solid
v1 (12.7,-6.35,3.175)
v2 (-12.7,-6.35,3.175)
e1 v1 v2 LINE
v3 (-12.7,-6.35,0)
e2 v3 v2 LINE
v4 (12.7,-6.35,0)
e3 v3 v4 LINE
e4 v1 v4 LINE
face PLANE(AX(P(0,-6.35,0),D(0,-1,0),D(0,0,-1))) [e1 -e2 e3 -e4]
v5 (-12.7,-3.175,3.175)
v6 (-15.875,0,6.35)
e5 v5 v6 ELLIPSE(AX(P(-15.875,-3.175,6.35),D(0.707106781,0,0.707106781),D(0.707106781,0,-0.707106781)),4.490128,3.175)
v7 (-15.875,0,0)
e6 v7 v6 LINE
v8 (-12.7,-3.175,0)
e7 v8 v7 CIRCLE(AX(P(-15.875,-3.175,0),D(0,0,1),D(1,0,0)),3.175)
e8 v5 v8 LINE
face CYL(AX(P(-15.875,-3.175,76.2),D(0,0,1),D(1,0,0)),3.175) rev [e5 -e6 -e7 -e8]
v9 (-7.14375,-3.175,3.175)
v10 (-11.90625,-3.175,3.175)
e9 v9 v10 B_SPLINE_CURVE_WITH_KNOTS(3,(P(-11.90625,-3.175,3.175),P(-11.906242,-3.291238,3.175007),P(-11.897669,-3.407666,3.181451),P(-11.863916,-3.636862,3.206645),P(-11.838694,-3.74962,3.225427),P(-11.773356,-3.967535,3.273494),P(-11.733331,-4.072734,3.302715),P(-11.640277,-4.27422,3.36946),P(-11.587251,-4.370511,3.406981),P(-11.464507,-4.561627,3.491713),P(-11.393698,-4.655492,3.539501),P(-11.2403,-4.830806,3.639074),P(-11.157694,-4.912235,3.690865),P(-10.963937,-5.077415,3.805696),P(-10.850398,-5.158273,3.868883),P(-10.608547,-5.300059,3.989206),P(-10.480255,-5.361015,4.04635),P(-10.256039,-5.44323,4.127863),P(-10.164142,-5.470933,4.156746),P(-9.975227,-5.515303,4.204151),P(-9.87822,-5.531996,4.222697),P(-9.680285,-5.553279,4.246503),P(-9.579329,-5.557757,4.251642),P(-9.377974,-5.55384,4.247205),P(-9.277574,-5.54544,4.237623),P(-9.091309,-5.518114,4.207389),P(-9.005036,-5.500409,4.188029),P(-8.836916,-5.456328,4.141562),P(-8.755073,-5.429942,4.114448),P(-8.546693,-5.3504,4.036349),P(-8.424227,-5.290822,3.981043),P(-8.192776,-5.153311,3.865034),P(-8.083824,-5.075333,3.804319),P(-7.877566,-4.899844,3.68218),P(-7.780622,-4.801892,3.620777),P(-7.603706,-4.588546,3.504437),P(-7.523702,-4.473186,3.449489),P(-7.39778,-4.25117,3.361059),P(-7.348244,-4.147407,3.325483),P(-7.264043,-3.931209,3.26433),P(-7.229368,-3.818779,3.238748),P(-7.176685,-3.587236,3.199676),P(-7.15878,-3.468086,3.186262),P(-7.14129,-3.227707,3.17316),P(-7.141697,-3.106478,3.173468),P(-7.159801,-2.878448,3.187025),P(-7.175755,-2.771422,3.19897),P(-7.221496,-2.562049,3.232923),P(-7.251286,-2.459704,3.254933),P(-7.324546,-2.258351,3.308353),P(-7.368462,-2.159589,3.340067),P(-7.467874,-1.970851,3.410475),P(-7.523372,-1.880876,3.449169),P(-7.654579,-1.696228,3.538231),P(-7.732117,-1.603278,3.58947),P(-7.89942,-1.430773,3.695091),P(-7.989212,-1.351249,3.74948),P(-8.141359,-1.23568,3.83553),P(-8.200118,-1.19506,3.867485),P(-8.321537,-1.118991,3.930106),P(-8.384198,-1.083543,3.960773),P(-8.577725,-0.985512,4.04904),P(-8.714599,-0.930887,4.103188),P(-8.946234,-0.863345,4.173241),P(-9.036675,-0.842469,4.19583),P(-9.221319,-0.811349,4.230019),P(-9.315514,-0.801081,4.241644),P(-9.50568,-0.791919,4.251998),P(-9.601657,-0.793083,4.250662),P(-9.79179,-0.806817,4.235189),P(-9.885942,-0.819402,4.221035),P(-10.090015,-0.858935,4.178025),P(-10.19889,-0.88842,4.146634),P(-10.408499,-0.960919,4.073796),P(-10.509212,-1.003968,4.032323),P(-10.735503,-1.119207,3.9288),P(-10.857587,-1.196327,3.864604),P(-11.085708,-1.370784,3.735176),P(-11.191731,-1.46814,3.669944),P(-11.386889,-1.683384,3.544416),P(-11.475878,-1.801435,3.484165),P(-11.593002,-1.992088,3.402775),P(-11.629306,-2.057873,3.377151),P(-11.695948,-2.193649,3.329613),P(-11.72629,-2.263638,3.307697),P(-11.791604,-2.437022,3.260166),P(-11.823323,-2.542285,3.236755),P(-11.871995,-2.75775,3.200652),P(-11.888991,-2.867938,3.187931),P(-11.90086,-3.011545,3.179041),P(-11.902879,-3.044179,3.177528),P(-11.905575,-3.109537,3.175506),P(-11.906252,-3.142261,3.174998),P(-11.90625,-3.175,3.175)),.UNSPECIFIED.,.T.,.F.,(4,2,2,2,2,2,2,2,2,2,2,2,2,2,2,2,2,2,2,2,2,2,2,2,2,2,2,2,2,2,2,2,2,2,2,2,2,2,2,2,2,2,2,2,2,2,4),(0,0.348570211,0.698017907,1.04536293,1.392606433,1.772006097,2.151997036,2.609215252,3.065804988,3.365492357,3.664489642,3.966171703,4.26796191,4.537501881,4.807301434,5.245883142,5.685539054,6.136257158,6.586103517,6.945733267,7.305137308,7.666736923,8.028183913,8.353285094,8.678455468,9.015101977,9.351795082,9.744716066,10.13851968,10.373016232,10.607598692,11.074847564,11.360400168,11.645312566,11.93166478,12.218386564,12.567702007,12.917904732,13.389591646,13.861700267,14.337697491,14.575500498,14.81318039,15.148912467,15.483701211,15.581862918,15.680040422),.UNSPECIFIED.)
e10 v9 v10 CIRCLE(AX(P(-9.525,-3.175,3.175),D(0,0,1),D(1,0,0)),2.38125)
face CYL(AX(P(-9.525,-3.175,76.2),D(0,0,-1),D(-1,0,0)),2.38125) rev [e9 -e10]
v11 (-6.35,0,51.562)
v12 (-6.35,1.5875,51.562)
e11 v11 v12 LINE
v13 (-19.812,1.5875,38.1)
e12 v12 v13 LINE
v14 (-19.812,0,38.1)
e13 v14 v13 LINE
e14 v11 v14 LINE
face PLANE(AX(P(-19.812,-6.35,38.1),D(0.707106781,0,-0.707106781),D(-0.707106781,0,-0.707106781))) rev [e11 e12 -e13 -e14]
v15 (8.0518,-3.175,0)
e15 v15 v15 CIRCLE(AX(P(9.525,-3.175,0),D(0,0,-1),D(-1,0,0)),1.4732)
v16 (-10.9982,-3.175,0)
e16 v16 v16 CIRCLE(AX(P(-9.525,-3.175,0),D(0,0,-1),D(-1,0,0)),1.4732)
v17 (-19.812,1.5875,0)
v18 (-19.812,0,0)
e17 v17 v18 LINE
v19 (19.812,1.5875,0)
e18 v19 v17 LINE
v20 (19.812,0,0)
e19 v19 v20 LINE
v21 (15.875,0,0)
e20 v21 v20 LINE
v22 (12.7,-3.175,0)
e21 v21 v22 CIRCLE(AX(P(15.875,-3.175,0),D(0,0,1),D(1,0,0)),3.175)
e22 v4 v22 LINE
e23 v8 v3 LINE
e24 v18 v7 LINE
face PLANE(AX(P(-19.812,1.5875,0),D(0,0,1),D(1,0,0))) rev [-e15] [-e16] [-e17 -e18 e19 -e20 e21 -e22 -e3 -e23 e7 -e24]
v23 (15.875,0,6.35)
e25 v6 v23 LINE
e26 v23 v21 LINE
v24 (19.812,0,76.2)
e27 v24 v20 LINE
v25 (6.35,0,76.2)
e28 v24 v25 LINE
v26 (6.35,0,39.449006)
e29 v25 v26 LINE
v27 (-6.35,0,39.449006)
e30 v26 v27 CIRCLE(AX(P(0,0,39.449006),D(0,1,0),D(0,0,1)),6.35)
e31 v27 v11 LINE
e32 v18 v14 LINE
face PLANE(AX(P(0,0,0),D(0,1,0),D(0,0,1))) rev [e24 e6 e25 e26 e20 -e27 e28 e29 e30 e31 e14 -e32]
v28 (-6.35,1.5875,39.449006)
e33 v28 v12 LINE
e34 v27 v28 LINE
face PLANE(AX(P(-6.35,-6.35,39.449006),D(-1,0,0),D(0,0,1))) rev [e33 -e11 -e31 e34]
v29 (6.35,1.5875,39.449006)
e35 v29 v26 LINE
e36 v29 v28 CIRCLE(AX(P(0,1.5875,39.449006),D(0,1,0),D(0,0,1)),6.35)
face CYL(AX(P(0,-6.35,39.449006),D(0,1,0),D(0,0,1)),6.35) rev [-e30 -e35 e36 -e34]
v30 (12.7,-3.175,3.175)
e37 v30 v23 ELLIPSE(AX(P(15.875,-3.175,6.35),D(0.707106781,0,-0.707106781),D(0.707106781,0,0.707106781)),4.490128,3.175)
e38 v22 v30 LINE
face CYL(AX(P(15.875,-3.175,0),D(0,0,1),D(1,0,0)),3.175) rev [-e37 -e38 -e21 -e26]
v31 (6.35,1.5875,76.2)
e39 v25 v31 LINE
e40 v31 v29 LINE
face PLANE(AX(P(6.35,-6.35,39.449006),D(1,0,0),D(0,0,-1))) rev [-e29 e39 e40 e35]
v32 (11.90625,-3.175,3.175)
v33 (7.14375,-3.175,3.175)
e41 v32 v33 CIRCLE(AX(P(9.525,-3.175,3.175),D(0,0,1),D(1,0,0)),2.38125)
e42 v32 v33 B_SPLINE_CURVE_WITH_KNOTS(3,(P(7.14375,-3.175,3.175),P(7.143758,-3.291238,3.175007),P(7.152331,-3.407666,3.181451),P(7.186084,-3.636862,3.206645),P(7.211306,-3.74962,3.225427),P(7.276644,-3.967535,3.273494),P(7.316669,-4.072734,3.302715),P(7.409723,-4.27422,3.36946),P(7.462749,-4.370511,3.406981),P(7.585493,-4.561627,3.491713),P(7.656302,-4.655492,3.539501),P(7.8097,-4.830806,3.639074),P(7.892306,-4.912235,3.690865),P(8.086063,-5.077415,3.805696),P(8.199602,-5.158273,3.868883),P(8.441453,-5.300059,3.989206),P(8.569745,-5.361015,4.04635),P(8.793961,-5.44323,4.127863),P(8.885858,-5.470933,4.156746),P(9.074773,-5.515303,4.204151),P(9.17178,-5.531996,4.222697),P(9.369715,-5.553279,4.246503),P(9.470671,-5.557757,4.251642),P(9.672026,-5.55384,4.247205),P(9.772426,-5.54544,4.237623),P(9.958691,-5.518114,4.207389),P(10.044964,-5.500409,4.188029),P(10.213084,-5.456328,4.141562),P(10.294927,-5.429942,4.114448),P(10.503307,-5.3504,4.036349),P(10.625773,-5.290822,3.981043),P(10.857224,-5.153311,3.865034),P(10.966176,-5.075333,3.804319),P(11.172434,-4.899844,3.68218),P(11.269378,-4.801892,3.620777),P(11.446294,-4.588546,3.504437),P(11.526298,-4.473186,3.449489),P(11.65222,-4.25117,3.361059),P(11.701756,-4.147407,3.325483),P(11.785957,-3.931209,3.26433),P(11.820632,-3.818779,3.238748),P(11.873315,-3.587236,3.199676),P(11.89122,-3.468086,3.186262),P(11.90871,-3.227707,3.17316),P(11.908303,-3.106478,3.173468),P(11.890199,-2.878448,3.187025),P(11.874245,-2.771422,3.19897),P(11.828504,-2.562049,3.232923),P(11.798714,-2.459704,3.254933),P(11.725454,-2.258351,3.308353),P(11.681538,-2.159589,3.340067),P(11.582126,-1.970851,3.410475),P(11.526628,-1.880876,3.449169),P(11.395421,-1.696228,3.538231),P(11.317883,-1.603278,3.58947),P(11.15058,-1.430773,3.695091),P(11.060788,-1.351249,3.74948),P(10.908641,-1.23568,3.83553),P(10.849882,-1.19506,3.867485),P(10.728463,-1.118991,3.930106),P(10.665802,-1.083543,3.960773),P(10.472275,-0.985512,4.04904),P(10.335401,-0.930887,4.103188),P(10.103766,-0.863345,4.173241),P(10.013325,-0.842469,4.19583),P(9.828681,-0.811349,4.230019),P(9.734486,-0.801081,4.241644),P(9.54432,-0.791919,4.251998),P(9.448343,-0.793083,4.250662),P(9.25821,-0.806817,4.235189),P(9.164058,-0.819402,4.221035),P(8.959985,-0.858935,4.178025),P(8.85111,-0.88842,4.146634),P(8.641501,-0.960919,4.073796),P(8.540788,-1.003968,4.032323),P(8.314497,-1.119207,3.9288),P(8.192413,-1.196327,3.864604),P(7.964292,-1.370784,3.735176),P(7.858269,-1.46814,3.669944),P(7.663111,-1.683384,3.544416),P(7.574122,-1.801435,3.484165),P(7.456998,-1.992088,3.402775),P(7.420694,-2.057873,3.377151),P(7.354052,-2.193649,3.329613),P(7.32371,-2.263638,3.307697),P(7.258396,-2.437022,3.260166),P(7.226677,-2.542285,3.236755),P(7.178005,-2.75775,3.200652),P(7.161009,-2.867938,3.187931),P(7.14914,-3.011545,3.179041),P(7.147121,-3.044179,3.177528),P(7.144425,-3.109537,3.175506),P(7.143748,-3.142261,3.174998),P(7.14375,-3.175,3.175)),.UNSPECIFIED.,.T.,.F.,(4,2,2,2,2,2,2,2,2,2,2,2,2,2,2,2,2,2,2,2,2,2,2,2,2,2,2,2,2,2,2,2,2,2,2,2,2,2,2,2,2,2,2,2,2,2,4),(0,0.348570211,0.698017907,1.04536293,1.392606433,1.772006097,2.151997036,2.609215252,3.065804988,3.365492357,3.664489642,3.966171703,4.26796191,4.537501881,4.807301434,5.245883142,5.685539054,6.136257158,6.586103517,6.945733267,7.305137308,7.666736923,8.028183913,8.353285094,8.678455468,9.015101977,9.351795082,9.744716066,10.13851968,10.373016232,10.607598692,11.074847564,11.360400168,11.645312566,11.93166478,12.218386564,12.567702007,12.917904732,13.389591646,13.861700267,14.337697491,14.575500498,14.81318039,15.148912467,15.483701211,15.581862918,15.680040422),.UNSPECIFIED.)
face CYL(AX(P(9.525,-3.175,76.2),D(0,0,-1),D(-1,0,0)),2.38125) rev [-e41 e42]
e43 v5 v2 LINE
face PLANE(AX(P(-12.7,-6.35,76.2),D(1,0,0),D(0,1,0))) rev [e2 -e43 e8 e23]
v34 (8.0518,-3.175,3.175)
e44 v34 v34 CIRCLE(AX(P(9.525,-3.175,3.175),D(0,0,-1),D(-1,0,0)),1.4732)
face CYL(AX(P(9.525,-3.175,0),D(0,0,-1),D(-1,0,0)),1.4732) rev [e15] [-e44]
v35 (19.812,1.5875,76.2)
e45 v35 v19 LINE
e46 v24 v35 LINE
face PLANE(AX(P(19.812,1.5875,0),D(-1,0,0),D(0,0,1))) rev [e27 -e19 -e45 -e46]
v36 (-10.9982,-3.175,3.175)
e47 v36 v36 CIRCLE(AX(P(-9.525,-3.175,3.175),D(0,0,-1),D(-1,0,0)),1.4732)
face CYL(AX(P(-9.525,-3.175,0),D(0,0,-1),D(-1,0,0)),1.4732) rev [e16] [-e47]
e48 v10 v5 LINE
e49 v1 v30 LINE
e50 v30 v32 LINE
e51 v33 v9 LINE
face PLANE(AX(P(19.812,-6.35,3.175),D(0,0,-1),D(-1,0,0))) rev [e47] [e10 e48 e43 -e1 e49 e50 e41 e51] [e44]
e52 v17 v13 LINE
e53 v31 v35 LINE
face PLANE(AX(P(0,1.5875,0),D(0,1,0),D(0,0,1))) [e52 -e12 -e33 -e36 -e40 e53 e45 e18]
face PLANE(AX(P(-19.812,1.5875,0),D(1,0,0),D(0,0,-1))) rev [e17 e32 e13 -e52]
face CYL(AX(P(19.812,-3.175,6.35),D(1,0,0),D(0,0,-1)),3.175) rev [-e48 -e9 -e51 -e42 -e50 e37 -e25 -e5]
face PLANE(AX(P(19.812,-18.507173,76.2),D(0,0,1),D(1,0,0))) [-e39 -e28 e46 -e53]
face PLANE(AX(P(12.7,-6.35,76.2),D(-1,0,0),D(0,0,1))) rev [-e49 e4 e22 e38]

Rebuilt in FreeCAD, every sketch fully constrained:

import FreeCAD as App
import Part
import Sketcher
from FreeCAD import Vector
Q = App.Units.Quantity


def edges_at(feature, points):
    """Names of the edges that pass closest to the given points."""
    edges = feature.Shape.Edges
    near = lambda p: min(range(len(edges)), key=lambda i: edges[i].distToShape(Part.Vertex(*p))[0])
    return sorted({f"Edge{near(p) + 1}" for p in points})


def add_polygon(sketch, points):
    """Adds a closed chain of lines whose ends are joined by coincident constraints."""
    first, n = sketch.GeometryCount, len(points)
    for a, b in zip(points, points[1:] + points[:1]):
        sketch.addGeometry(Part.LineSegment(App.Vector(*a, 0), App.Vector(*b, 0)), False)
    for i in range(n):
        sketch.addConstraint(Sketcher.Constraint("Coincident", first + i, 2, first + (i + 1) % n, 1))

doc = App.newDocument("Part")
body = doc.addObject("PartDesign::Body", "Body")

# Sketch on XZ plane
sketch1 = body.newObject("Sketcher::SketchObject", "Sketch")
sketch1.AttachmentSupport = (doc.getObject("XZ_Plane"), [""])
sketch1.MapMode = "FlatFace"
add_polygon(sketch1, [(-20, 0), (-20, 64), (20, 64), (20, 0)])  # lines 0-3
sketch1.addConstraint(Sketcher.Constraint("Vertical", 0))
sketch1.addConstraint(Sketcher.Constraint("Horizontal", 1))
sketch1.addConstraint(Sketcher.Constraint("Vertical", 2))
sketch1.addConstraint(Sketcher.Constraint("Horizontal", 3))
sketch1.addConstraint(Sketcher.Constraint("Symmetric", 2, 2, 3, 2, -1, 1))
sketch1.addConstraint(Sketcher.Constraint("DistanceY", 0, 1, 0, 2, Q("2.5 in")))
sketch1.addConstraint(Sketcher.Constraint("DistanceX", 1, 1, 1, 2, Q("1.56 in")))
pad1 = body.newObject("PartDesign::Pad", "Pad")
pad1.Profile = sketch1
pad1.Length = Q("0.0625 in")
pad1.Reversed = True

# Sketch on XZ plane
sketch2 = body.newObject("Sketcher::SketchObject", "Sketch001")
sketch2.AttachmentSupport = (doc.getObject("XZ_Plane"), [""])
sketch2.MapMode = "FlatFace"
add_polygon(sketch2, [(-19.8, 3.2), (-19.8, 0), (19.8, 0), (19.8, 3.2)])  # lines 0-3
sketch2.addConstraint(Sketcher.Constraint("Vertical", 0))
sketch2.addConstraint(Sketcher.Constraint("Horizontal", 1))
sketch2.addConstraint(Sketcher.Constraint("Vertical", 2))
sketch2.addConstraint(Sketcher.Constraint("Horizontal", 3))
sketch2.addConstraint(Sketcher.Constraint("Symmetric", 0, 2, 1, 2, -1, 1))
sketch2.addConstraint(Sketcher.Constraint("DistanceX", 1, 1, 1, 2, Q("1.56 in")))
sketch2.addConstraint(Sketcher.Constraint("DistanceY", 0, 2, 0, 1, Q("0.125 in")))
pad2 = body.newObject("PartDesign::Pad", "Pad001")
pad2.Profile = sketch2
pad2.Length = Q("0.25 in")

# Sketch on XZ plane
sketch3 = body.newObject("Sketcher::SketchObject", "Sketch002")
sketch3.AttachmentSupport = (doc.getObject("XZ_Plane"), [""])
sketch3.MapMode = "FlatFace"
sketch3.AttachmentOffset = App.Placement(Vector(0, 0, -0.0625 * 25.4), App.Rotation())
sketch3.addGeometry(Part.Circle(Vector(0, 39, 0), Vector(0, 0, 1), 6), False)
sketch3.addConstraint(Sketcher.Constraint("PointOnObject", 0, 3, -2))
sketch3.addConstraint(Sketcher.Constraint("Diameter", 0, Q("0.5 in")))
sketch3.addConstraint(Sketcher.Constraint("DistanceY", -1, 1, 0, 3, 39.449006))
pocket1 = body.newObject("PartDesign::Pocket", "Pocket")
pocket1.Profile = sketch3
pocket1.Type = "ThroughAll"
pocket1.Reversed = True

# Sketch on XZ plane
sketch4 = body.newObject("Sketcher::SketchObject", "Sketch003")
sketch4.AttachmentSupport = (doc.getObject("XZ_Plane"), [""])
sketch4.MapMode = "FlatFace"
sketch4.AttachmentOffset = App.Placement(Vector(0, 0, -0.0625 * 25.4), App.Rotation())
add_polygon(sketch4, [(6, 64), (-20, 38), (-20, 64)])  # lines 0-2
sketch4.addConstraint(Sketcher.Constraint("Vertical", 1))
sketch4.addConstraint(Sketcher.Constraint("Horizontal", 2))
sketch4.addConstraint(Sketcher.Constraint("Equal", 2, 1))
sketch4.addConstraint(Sketcher.Constraint("DistanceX", 2, 1, 2, 2, Q("1 in")))
sketch4.addConstraint(Sketcher.Constraint("DistanceY", -1, 1, 0, 2, Q("1.5 in")))
sketch4.addConstraint(Sketcher.Constraint("DistanceX", 0, 2, -1, 1, Q("0.78 in")))
pocket2 = body.newObject("PartDesign::Pocket", "Pocket001")
pocket2.Profile = sketch4
pocket2.Type = "ThroughAll"
pocket2.Midplane = True

# Sketch on XZ plane
sketch5 = body.newObject("Sketcher::SketchObject", "Sketch004")
sketch5.AttachmentSupport = (doc.getObject("XZ_Plane"), [""])
sketch5.MapMode = "FlatFace"
sketch5.AttachmentOffset = App.Placement(Vector(0, 0, -0.0625 * 25.4), App.Rotation())
add_polygon(sketch5, [(-6, 39), (-6, 68), (6, 68), (6, 39)])  # lines 0-3
sketch5.addConstraint(Sketcher.Constraint("Vertical", 0))
sketch5.addConstraint(Sketcher.Constraint("Horizontal", 1))
sketch5.addConstraint(Sketcher.Constraint("Vertical", 2))
sketch5.addConstraint(Sketcher.Constraint("Horizontal", 3))
sketch5.addConstraint(Sketcher.Constraint("DistanceX", 1, 1, 1, 2, Q("0.5 in")))
sketch5.addConstraint(Sketcher.Constraint("DistanceX", 0, 2, -1, 1, Q("0.25 in")))
sketch5.addConstraint(Sketcher.Constraint("DistanceY", 0, 1, 0, 2, 28.946653))
sketch5.addConstraint(Sketcher.Constraint("DistanceY", -1, 1, 0, 2, 68.395659))
pocket3 = body.newObject("PartDesign::Pocket", "Pocket002")
pocket3.Profile = sketch5
pocket3.Type = "ThroughAll"
pocket3.Reversed = True

# Sketch on XZ plane
sketch6 = body.newObject("Sketcher::SketchObject", "Sketch005")
sketch6.AttachmentSupport = (doc.getObject("XZ_Plane"), [""])
sketch6.MapMode = "FlatFace"
sketch6.AttachmentOffset = App.Placement(Vector(0, 0, -0.0625 * 25.4), App.Rotation())
add_polygon(sketch6, [(6, 64), (6, 76), (20, 76), (20, 64)])  # lines 0-3
sketch6.addConstraint(Sketcher.Constraint("Vertical", 0))
sketch6.addConstraint(Sketcher.Constraint("Horizontal", 1))
sketch6.addConstraint(Sketcher.Constraint("Vertical", 2))
sketch6.addConstraint(Sketcher.Constraint("Horizontal", 3))
sketch6.addConstraint(Sketcher.Constraint("DistanceY", 0, 1, 0, 2, Q("0.5 in")))
sketch6.addConstraint(Sketcher.Constraint("DistanceY", -1, 1, 0, 2, Q("3 in")))
sketch6.addConstraint(Sketcher.Constraint("DistanceX", 1, 1, 1, 2, Q("0.53 in")))
sketch6.addConstraint(Sketcher.Constraint("DistanceX", -1, 1, 0, 2, Q("0.25 in")))
pad3 = body.newObject("PartDesign::Pad", "Pad002")
pad3.Profile = sketch6
pad3.Length = Q("0.0625 in")

# Sketch on XY plane
sketch7 = body.newObject("Sketcher::SketchObject", "Sketch006")
sketch7.AttachmentSupport = (doc.getObject("XY_Plane"), [""])
sketch7.MapMode = "FlatFace"
add_polygon(sketch7, [(20, 0), (20, -6), (13, -6), (13, 0)])  # lines 0-3
add_polygon(sketch7, [(-13, 0), (-13, -6), (-20, -6), (-20, 0)])  # lines 4-7
sketch7.addConstraint(Sketcher.Constraint("Vertical", 0))
sketch7.addConstraint(Sketcher.Constraint("Horizontal", 1))
sketch7.addConstraint(Sketcher.Constraint("Vertical", 2))
sketch7.addConstraint(Sketcher.Constraint("Horizontal", 3))
sketch7.addConstraint(Sketcher.Constraint("Vertical", 4))
sketch7.addConstraint(Sketcher.Constraint("Horizontal", 5))
sketch7.addConstraint(Sketcher.Constraint("Vertical", 6))
sketch7.addConstraint(Sketcher.Constraint("Horizontal", 7))
sketch7.addConstraint(Sketcher.Constraint("Symmetric", 3, 2, 6, 2, -1, 1))
sketch7.addConstraint(Sketcher.Constraint("Symmetric", 1, 2, 4, 2, -2))
sketch7.addConstraint(Sketcher.Constraint("PointOnObject", 2, 2, -1))
sketch7.addConstraint(Sketcher.Constraint("DistanceX", 4, 2, 1, 2, Q("1 in")))
sketch7.addConstraint(Sketcher.Constraint("DistanceX", 1, 2, 1, 1, Q("0.28 in")))
sketch7.addConstraint(Sketcher.Constraint("DistanceY", 0, 2, 0, 1, Q("0.25 in")))
pocket4 = body.newObject("PartDesign::Pocket", "Pocket003")
pocket4.Profile = sketch7
pocket4.Type = "ThroughAll"
pocket4.Reversed = True
doc.recompute()

fillet = body.newObject("PartDesign::Fillet", "Fillet")
fillet.Base = (pocket4, edges_at(pocket4, [(-12.7, 0, 1.587), (0, 0, 3.175), (12.7, 0, 1.587)]))
fillet.Radius = Q("0.125 in")

# Sketch on XY plane
sketch8 = body.newObject("Sketcher::SketchObject", "Sketch007")
sketch8.AttachmentSupport = (doc.getObject("XY_Plane"), [""])
sketch8.MapMode = "FlatFace"
sketch8.addGeometry(Part.Circle(Vector(9.5, -3.2, 0), Vector(0, 0, 1), 1.5), False)
sketch8.addGeometry(Part.Circle(Vector(-9.5, -3.2, 0), Vector(0, 0, 1), 1.5), False)
sketch8.addConstraint(Sketcher.Constraint("Equal", 0, 1))
sketch8.addConstraint(Sketcher.Constraint("Symmetric", 0, 3, 1, 3, -2))
sketch8.addConstraint(Sketcher.Constraint("Diameter", 0, Q("0.116 in")))
sketch8.addConstraint(Sketcher.Constraint("DistanceX", 1, 3, 0, 3, Q("0.75 in")))
sketch8.addConstraint(Sketcher.Constraint("DistanceY", 0, 3, -1, 1, Q("0.125 in")))
doc.recompute()
hole = body.newObject("PartDesign::Hole", "Hole")
hole.Profile = sketch8
hole.ThreadType = "None"
hole.Diameter = Q("0.116 in")
hole.DepthType = "ThroughAll"
hole.Reversed = True

# Sketch on XY plane
sketch9 = body.newObject("Sketcher::SketchObject", "Sketch008")
sketch9.AttachmentSupport = (doc.getObject("XY_Plane"), [""])
sketch9.MapMode = "FlatFace"
sketch9.AttachmentOffset = App.Placement(Vector(0, 0, 0.125 * 25.4), App.Rotation())
sketch9.addGeometry(Part.Circle(Vector(9.5, -3.2, 0), Vector(0, 0, 1), 2.4), False)
sketch9.addGeometry(Part.Circle(Vector(-9.5, -3.2, 0), Vector(0, 0, 1), 2.4), False)
sketch9.addConstraint(Sketcher.Constraint("Equal", 0, 1))
sketch9.addConstraint(Sketcher.Constraint("Symmetric", 0, 3, 1, 3, -2))
sketch9.addConstraint(Sketcher.Constraint("Diameter", 0, Q("0.1875 in")))
sketch9.addConstraint(Sketcher.Constraint("DistanceX", 1, 3, 0, 3, Q("0.75 in")))
sketch9.addConstraint(Sketcher.Constraint("DistanceY", 0, 3, -1, 1, Q("0.125 in")))
pocket5 = body.newObject("PartDesign::Pocket", "Pocket004")
pocket5.Profile = sketch9
pocket5.Type = "ThroughAll"
pocket5.Reversed = True

doc.recompute()
